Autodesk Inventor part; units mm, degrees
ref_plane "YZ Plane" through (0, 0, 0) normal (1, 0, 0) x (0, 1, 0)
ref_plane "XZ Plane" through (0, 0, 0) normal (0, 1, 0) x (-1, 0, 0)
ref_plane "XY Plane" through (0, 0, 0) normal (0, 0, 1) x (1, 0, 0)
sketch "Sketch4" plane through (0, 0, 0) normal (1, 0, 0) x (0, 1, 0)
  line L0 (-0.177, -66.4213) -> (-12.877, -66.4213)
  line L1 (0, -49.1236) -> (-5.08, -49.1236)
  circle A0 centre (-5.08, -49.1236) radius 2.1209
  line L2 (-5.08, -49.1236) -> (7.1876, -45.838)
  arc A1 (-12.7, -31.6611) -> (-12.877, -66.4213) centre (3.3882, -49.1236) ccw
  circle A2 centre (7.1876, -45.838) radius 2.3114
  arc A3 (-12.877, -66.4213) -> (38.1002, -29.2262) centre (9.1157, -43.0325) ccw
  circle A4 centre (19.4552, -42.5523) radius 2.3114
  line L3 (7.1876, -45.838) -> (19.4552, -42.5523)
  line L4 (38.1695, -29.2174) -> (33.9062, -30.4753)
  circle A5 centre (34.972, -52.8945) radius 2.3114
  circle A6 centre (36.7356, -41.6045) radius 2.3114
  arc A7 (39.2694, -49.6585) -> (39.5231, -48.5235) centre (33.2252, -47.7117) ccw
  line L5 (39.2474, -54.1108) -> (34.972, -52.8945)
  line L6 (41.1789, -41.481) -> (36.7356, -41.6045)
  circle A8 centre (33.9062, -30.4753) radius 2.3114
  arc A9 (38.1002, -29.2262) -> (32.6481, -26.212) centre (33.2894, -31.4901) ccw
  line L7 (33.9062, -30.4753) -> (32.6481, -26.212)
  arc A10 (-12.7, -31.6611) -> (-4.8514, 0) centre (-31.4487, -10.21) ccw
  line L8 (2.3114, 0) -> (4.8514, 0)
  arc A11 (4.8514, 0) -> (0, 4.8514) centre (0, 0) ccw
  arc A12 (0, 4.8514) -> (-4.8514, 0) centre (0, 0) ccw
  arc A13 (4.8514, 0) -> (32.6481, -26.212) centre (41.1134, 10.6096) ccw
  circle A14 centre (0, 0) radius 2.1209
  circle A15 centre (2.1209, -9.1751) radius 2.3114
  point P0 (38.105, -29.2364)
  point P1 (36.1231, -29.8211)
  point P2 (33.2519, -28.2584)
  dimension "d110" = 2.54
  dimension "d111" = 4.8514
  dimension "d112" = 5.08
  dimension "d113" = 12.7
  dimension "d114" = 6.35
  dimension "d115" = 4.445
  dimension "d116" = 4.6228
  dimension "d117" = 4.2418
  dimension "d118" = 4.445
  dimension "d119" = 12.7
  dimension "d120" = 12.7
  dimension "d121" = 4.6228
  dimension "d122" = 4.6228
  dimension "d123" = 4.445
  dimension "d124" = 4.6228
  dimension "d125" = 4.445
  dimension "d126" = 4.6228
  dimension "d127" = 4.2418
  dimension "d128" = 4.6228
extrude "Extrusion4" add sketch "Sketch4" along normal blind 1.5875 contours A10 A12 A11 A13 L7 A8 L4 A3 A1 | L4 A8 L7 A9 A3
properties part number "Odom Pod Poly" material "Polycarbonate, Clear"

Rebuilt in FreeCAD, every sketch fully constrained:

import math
import FreeCAD as App
import Part
import Sketcher

V = App.Vector
Q = App.Units.Quantity

doc = App.newDocument("Part")
body = doc.addObject("PartDesign::Body", "Body")

# Sketch on YZ plane
sketch1 = doc.addObject("Sketcher::SketchObject", "Sketch")
body.addObject(sketch1)
sketch1.AttachmentSupport = (doc.YZ_Plane, [""])
sketch1.MapMode = "FlatFace"
sketch1.addGeometry([
    Part.ArcOfCircle(Part.Circle(V(-31.4, -10.2, 0), V(0, 0, 1), 28.5), math.radians(-49), math.radians(21)),  # 0
    Part.ArcOfCircle(Part.Circle(V(3.4, -49.1, 0), V(0, 0, 1), 23.7), math.radians(133), math.radians(227)),  # 1
    Part.ArcOfCircle(Part.Circle(V(9.1, -43, 0), V(0, 0, 1), 32.1), math.radians(-133), math.radians(-20)),  # 2
    Part.ArcOfCircle(Part.Circle(V(9.1, -43, 0), V(0, 0, 1), 32.1), math.radians(-20), math.radians(25)),  # 3
    Part.ArcOfCircle(Part.Circle(V(33.3, -31.5, 0), V(0, 0, 1), 5.3), math.radians(25), math.radians(97)),  # 4
    Part.ArcOfCircle(Part.Circle(V(41.1, 10.6, 0), V(0, 0, 1), 37.8), math.radians(-164), math.radians(-103)),  # 5
    Part.ArcOfCircle(Part.Circle(V(0, 0, 0), V(0, 0, 1), 4.9), math.radians(0), math.radians(180)),  # 6
    Part.Circle(V(33.9, -30.5, 0), V(0, 0, 1), 2.3),  # 7
    Part.Circle(V(-5.1, -49.1, 0), V(0, 0, 1), 2.1),  # 8
    Part.ArcOfCircle(Part.Circle(V(7.2, -45.8, 0), V(0, 0, 1), 2.3), math.radians(15), math.radians(195)),  # 9
    Part.ArcOfCircle(Part.Circle(V(7.2, -45.8, 0), V(0, 0, 1), 2.3), math.radians(-165), math.radians(15)),  # 10
    Part.Circle(V(19.5, -42.6, 0), V(0, 0, 1), 2.3),  # 11
    Part.Circle(V(35, -52.9, 0), V(0, 0, 1), 2.3),  # 12
    Part.Circle(V(36.7, -41.6, 0), V(0, 0, 1), 2.3),  # 13
    Part.Circle(V(2.1, -9.2, 0), V(0, 0, 1), 2.3),  # 14
    Part.Circle(V(0, 0, 0), V(0, 0, 1), 2.1),  # 15
], False)
sketch1.addConstraint([
    Sketcher.Constraint("Coincident", 0, 1, 1, 1),
    Sketcher.Constraint("Tangent", 1, 2, 2, 1),
    Sketcher.Constraint("Tangent", 2, 2, 3, 1),
    Sketcher.Constraint("Coincident", 3, 2, 4, 1),
    Sketcher.Constraint("Coincident", 4, 2, 5, 2),
    Sketcher.Constraint("Coincident", 5, 1, 6, 1),
    Sketcher.Constraint("Coincident", 6, 2, 0, 2),
    Sketcher.Constraint("Tangent", 9, 1, 10, 2),
    Sketcher.Constraint("Coincident", 10, 1, 9, 2),
    Sketcher.Constraint("Coincident", 6, 3, -1, 1),
    Sketcher.Constraint("Coincident", 15, 3, -1, 1),
    Sketcher.Constraint("Equal", 2, 3),
    Sketcher.Constraint("Equal", 7, 9),
    Sketcher.Constraint("Equal", 10, 11),
    Sketcher.Constraint("Equal", 11, 12),
    Sketcher.Constraint("Equal", 12, 13),
    Sketcher.Constraint("Equal", 13, 14),
    Sketcher.Constraint("Equal", 8, 15),
    Sketcher.Constraint("PointOnObject", 5, 1, -1),
    Sketcher.Constraint("PointOnObject", 6, 2, -1),
    Sketcher.Constraint("Horizontal", 1, 3, 8, 3),
    Sketcher.Constraint("Diameter", 7, Q("0.182 in")),
    Sketcher.Constraint("Diameter", 8, Q("0.167 in")),
    Sketcher.Constraint("Radius", 6, Q("0.191 in")),
    Sketcher.Constraint("DistanceX", 8, 3, -1, 1, Q("0.2 in")),
    Sketcher.Constraint("DistanceX", 0, 1, -1, 1, Q("0.5 in")),
    Sketcher.Constraint("DistanceX", -1, 1, 3, 2, Q("1.5 in")),
    Sketcher.Constraint("Radius", 1, Q("0.9348 in")),
    Sketcher.Constraint("Radius", 5, Q("1.4875 in")),
    Sketcher.Constraint("Radius", 0, Q("28.4897 mm")),
    Sketcher.Constraint("Radius", 2, Q("32.1047 mm")),
    Sketcher.Constraint("Radius", 4, Q("5.3169 mm")),
    Sketcher.Constraint("DistanceY", 1, 3, -1, 1, Q("1.934 in")),
    Sketcher.Constraint("DistanceX", 2, 3, 7, 3, Q("0.976 in")),
    Sketcher.Constraint("DistanceY", 8, 3, 0, 1, Q("0.6875 in")),
    Sketcher.Constraint("DistanceY", 13, 3, 4, 2, Q("0.606 in")),
    Sketcher.Constraint("DistanceX", 2, 3, 9, 1, Q("0.012 in")),
    Sketcher.Constraint("DistanceY", 10, 1, 2, 3, Q("0.134 in")),
    Sketcher.Constraint("DistanceY", 2, 3, -1, 1, Q("1.6942 in")),
    Sketcher.Constraint("DistanceX", -1, 1, 4, 3, Q("1.3106 in")),
    Sketcher.Constraint("DistanceY", -1, 1, 5, 3, Q("0.4177 in")),
    Sketcher.Constraint("DistanceX", -1, 1, 14, 3, Q("0.0835 in")),
    Sketcher.Constraint("DistanceX", -1, 1, 2, 2, Q("1.5452 in")),
    Sketcher.Constraint("DistanceY", 9, 1, -1, 1, Q("1.7811 in")),
    Sketcher.Constraint("DistanceX", 9, 3, 2, 3, Q("0.0759 in")),
    Sketcher.Constraint("DistanceY", 2, 3, 11, 3, Q("0.0189 in")),
    Sketcher.Constraint("DistanceX", 11, 3, 12, 3, Q("0.6109 in")),
    Sketcher.Constraint("DistanceY", 12, 3, 4, 3, Q("0.8427 in")),
    Sketcher.Constraint("DistanceX", 7, 3, 13, 3, Q("0.1114 in")),
    Sketcher.Constraint("DistanceX", 11, 3, 4, 2, Q("0.5194 in")),
    Sketcher.Constraint("DistanceY", 7, 3, -1, 1, Q("30.4753 mm")),
    Sketcher.Constraint("DistanceY", 14, 3, -1, 1, Q("9.175 mm")),
])
pad1 = doc.addObject("PartDesign::Pad", "Pad")
body.addObject(pad1)
pad1.Profile = sketch1
pad1.Length = Q("0.0625 in")

doc.recompute()
